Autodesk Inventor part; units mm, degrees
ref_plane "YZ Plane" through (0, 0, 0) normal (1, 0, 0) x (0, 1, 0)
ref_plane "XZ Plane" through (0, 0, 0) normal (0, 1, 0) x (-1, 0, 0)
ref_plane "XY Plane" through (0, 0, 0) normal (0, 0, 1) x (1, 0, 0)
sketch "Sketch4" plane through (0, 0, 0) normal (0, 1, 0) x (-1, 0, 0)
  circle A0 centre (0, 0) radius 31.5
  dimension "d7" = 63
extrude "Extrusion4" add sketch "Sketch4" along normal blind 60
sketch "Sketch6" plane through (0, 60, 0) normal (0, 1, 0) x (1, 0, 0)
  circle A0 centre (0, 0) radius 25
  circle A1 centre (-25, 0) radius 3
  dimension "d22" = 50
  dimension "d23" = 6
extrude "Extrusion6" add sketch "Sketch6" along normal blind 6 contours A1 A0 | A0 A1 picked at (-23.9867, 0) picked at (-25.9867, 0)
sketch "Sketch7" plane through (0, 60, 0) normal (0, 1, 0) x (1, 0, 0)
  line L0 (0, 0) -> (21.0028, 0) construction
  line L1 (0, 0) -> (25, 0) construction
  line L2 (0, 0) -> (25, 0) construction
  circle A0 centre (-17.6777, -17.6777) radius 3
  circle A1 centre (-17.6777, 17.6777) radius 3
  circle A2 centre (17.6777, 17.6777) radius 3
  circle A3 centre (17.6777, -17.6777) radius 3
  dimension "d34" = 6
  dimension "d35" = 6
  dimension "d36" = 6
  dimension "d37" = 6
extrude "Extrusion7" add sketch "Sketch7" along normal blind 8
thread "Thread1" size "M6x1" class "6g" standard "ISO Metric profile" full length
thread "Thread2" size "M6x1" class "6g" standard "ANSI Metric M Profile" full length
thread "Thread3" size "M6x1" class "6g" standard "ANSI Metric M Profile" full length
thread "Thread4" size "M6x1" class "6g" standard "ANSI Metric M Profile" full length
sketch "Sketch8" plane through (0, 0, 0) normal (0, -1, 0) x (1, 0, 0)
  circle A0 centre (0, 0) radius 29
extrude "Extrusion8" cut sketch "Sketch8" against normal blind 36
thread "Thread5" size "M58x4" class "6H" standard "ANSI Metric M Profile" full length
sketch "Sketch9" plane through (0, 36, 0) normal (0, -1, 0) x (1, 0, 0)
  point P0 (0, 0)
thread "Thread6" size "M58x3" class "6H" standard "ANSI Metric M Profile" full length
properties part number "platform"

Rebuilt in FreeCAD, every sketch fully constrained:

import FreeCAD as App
import Part
import Sketcher
from FreeCAD import Vector

doc = App.newDocument("Part")
body = doc.addObject("PartDesign::Body", "Body")

sketch1 = doc.addObject("Sketcher::SketchObject", "Sketch")
body.addObject(sketch1)
sketch1.AttachmentSupport = (doc.XZ_Plane, [""])
sketch1.MapMode = "FlatFace"
sketch1.addGeometry(Part.Circle(Vector(0, 0, 0), Vector(0, 0, 1), 32), False)
sketch1.addConstraint([
    Sketcher.Constraint("Coincident", 0, 3, -1, 1),
    Sketcher.Constraint("Diameter", 0, 63.0),
])
pad1 = doc.addObject("PartDesign::Pad", "Pad")
body.addObject(pad1)
pad1.Profile = sketch1
pad1.Length = 60
pad1.Reversed = True

sketch2 = doc.addObject("Sketcher::SketchObject", "Sketch001")
body.addObject(sketch2)
sketch2.AttachmentSupport = (doc.XZ_Plane, [""])
sketch2.MapMode = "FlatFace"
sketch2.AttachmentOffset = App.Placement(Vector(0, 0, -60), App.Rotation())
sketch2.addGeometry(Part.Circle(Vector(-25, 0, 0), Vector(0, 0, 1), 3), False)
sketch2.addConstraint([
    Sketcher.Constraint("PointOnObject", 0, 3, -1),
    Sketcher.Constraint("Diameter", 0, 6.0),
    Sketcher.Constraint("DistanceX", 0, 3, -1, 1, 25.0),
])
pad2 = doc.addObject("PartDesign::Pad", "Pad001")
body.addObject(pad2)
pad2.Profile = sketch2
pad2.Length = 6
pad2.Reversed = True

sketch3 = doc.addObject("Sketcher::SketchObject", "Sketch002")
body.addObject(sketch3)
sketch3.AttachmentSupport = (doc.XZ_Plane, [""])
sketch3.MapMode = "FlatFace"
sketch3.AttachmentOffset = App.Placement(Vector(0, 0, -60), App.Rotation())
sketch3.addGeometry([
    Part.Circle(Vector(-17.7, 17.7, 0), Vector(0, 0, 1), 3),
    Part.Circle(Vector(-17.7, -17.7, 0), Vector(0, 0, 1), 3),
    Part.Circle(Vector(17.7, -17.7, 0), Vector(0, 0, 1), 3),
    Part.Circle(Vector(17.7, 17.7, 0), Vector(0, 0, 1), 3),
], False)
sketch3.addConstraint([
    Sketcher.Constraint("Equal", 0, 1),
    Sketcher.Constraint("Equal", 1, 2),
    Sketcher.Constraint("Equal", 2, 3),
    Sketcher.Constraint("Symmetric", 0, 3, 2, 3, -1, 1),
    Sketcher.Constraint("Symmetric", 1, 3, 3, 3, -1, 1),
    Sketcher.Constraint("Symmetric", 1, 3, 2, 3, -2),
    Sketcher.Constraint("Diameter", 0, 6.0),
    Sketcher.Constraint("DistanceX", 0, 3, -1, 1, 17.6777),
    Sketcher.Constraint("DistanceY", -1, 1, 0, 3, 17.6777),
])
pad3 = doc.addObject("PartDesign::Pad", "Pad002")
body.addObject(pad3)
pad3.Profile = sketch3
pad3.Length = 8
pad3.Reversed = True

sketch4 = doc.addObject("Sketcher::SketchObject", "Sketch003")
body.addObject(sketch4)
sketch4.AttachmentSupport = (doc.XZ_Plane, [""])
sketch4.MapMode = "FlatFace"
sketch4.addGeometry(Part.Circle(Vector(0, 0, 0), Vector(0, 0, 1), 29), False)
sketch4.addConstraint([
    Sketcher.Constraint("Coincident", 0, 3, -1, 1),
    Sketcher.Constraint("Diameter", 0, 58.0),
])
pocket1 = doc.addObject("PartDesign::Pocket", "Pocket")
body.addObject(pocket1)
pocket1.Profile = sketch4
pocket1.Length = 36

doc.recompute()
